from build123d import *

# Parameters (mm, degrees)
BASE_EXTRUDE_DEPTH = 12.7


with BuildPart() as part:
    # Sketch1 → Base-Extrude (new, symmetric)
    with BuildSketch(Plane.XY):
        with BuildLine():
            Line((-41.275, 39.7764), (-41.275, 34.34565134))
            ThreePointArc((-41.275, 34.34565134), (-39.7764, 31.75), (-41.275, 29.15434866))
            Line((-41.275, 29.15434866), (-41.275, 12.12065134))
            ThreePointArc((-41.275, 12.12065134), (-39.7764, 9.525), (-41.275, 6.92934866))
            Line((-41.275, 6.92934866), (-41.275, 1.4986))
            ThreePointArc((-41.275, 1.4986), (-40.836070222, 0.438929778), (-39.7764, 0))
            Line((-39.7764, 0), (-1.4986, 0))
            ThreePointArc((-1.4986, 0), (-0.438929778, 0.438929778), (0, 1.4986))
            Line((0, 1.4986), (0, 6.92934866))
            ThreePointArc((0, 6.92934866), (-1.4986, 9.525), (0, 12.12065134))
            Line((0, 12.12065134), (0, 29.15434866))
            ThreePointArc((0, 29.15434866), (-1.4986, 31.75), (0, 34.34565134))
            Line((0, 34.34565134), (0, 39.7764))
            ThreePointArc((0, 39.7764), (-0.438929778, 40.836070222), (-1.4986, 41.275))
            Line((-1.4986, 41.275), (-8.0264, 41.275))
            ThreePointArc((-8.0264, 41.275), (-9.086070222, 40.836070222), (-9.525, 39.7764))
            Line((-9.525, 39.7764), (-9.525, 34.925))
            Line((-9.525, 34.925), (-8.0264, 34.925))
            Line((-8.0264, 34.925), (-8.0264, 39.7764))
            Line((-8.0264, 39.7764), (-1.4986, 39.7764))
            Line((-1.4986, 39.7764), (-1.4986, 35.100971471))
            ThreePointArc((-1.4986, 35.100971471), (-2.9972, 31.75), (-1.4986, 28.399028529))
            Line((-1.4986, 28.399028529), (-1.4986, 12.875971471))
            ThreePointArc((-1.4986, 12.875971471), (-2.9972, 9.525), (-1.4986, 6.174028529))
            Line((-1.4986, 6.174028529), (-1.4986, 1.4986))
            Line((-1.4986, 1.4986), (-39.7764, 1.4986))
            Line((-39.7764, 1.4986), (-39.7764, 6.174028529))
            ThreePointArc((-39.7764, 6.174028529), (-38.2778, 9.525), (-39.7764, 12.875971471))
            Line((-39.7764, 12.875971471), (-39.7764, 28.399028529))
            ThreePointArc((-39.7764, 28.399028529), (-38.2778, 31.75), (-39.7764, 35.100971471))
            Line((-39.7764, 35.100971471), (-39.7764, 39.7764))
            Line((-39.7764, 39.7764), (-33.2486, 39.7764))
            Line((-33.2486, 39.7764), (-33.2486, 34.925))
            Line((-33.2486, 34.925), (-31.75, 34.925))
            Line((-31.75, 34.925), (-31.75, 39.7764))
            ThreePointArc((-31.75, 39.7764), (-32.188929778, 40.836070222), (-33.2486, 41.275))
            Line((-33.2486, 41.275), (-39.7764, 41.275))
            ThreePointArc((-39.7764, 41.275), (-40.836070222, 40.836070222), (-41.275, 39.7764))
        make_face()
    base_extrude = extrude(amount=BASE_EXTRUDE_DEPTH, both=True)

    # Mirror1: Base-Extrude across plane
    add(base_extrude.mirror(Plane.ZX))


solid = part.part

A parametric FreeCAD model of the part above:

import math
import FreeCAD as App
import Part
import Sketcher
from FreeCAD import Vector
Q = App.Units.Quantity

doc = App.newDocument("Part")
params = doc.addObject("Spreadsheet::Sheet", "Params")
for row, (alias, value) in enumerate([
    ("sketch1_radius", "0.118 in"),
    ("sketch1_radius2", "0.059 in"),
    ("sketch1_radius3", "0.177 in"),
    ("sketch1_width", "1.507 in"),
    ("sketch1_width2", "0.257 in"),
    ("pad1_length", "1 in"),
], start=1):
    params.set(f"A{row}", alias)
    params.set(f"B{row}", "=" + value)
    params.setAlias(f"B{row}", alias)

body = doc.addObject("PartDesign::Body", "Body")

# Sketch on XY plane
sketch1 = doc.addObject("Sketcher::SketchObject", "Sketch")
body.addObject(sketch1)
sketch1.AttachmentSupport = (doc.XY_Plane, [""])
sketch1.MapMode = "FlatFace"
sketch1.addGeometry(Part.LineSegment(Vector(-41.3, 39.8, 0), Vector(-41.3, 34.3, 0)), False)
sketch1.addGeometry(Part.ArcOfCircle(Part.Circle(Vector(-42.8, 31.8, 0), Vector(0, 0, 1), 3), math.radians(-60), math.radians(60)), False)
sketch1.addGeometry(Part.LineSegment(Vector(-41.3, 29.2, 0), Vector(-41.3, 12.1, 0)), False)
sketch1.addGeometry(Part.ArcOfCircle(Part.Circle(Vector(-42.8, 9.5, 0), Vector(0, 0, 1), 3), math.radians(-60), math.radians(60)), False)
sketch1.addGeometry(Part.LineSegment(Vector(-41.3, 6.9, 0), Vector(-41.3, 1.5, 0)), False)
sketch1.addGeometry(Part.ArcOfCircle(Part.Circle(Vector(-39.8, 1.5, 0), Vector(0, 0, 1), 1.5), math.radians(-180), math.radians(-90)), False)
sketch1.addGeometry(Part.LineSegment(Vector(-39.8, 0, 0), Vector(-1.5, 0, 0)), False)
sketch1.addGeometry(Part.ArcOfCircle(Part.Circle(Vector(-1.5, 1.5, 0), Vector(0, 0, 1), 1.5), math.radians(-90), math.radians(0)), False)
sketch1.addGeometry(Part.LineSegment(Vector(0, 1.5, 0), Vector(0, 6.9, 0)), False)
sketch1.addGeometry(Part.ArcOfCircle(Part.Circle(Vector(1.5, 9.5, 0), Vector(0, 0, 1), 3), math.radians(120), math.radians(240)), False)
sketch1.addGeometry(Part.LineSegment(Vector(0, 12.1, 0), Vector(0, 29.2, 0)), False)
sketch1.addGeometry(Part.ArcOfCircle(Part.Circle(Vector(1.5, 31.8, 0), Vector(0, 0, 1), 3), math.radians(120), math.radians(240)), False)
sketch1.addGeometry(Part.LineSegment(Vector(0, 34.3, 0), Vector(0, 39.8, 0)), False)
sketch1.addGeometry(Part.ArcOfCircle(Part.Circle(Vector(-1.5, 39.8, 0), Vector(0, 0, 1), 1.5), math.radians(0), math.radians(90)), False)
sketch1.addGeometry(Part.LineSegment(Vector(-1.5, 41.3, 0), Vector(-8, 41.3, 0)), False)
sketch1.addGeometry(Part.ArcOfCircle(Part.Circle(Vector(-8, 39.8, 0), Vector(0, 0, 1), 1.5), math.radians(90), math.radians(180)), False)
sketch1.addGeometry(Part.LineSegment(Vector(-9.5, 39.8, 0), Vector(-9.5, 34.9, 0)), False)
sketch1.addGeometry(Part.LineSegment(Vector(-9.5, 34.9, 0), Vector(-8, 34.9, 0)), False)
sketch1.addGeometry(Part.LineSegment(Vector(-8, 34.9, 0), Vector(-8, 39.8, 0)), False)
sketch1.addGeometry(Part.LineSegment(Vector(-8, 39.8, 0), Vector(-1.5, 39.8, 0)), False)
sketch1.addGeometry(Part.LineSegment(Vector(-1.5, 39.8, 0), Vector(-1.5, 35.1, 0)), False)
sketch1.addGeometry(Part.ArcOfCircle(Part.Circle(Vector(1.5, 31.8, 0), Vector(0, 0, 1), 4.5), math.radians(132), math.radians(228)), False)
sketch1.addGeometry(Part.LineSegment(Vector(-1.5, 28.4, 0), Vector(-1.5, 12.9, 0)), False)
sketch1.addGeometry(Part.ArcOfCircle(Part.Circle(Vector(1.5, 9.5, 0), Vector(0, 0, 1), 4.5), math.radians(132), math.radians(228)), False)
sketch1.addGeometry(Part.LineSegment(Vector(-1.5, 6.2, 0), Vector(-1.5, 1.5, 0)), False)
sketch1.addGeometry(Part.LineSegment(Vector(-1.5, 1.5, 0), Vector(-39.8, 1.5, 0)), False)
sketch1.addGeometry(Part.LineSegment(Vector(-39.8, 1.5, 0), Vector(-39.8, 6.2, 0)), False)
sketch1.addGeometry(Part.ArcOfCircle(Part.Circle(Vector(-42.8, 9.5, 0), Vector(0, 0, 1), 4.5), math.radians(-48), math.radians(48)), False)
sketch1.addGeometry(Part.LineSegment(Vector(-39.8, 12.9, 0), Vector(-39.8, 28.4, 0)), False)
sketch1.addGeometry(Part.ArcOfCircle(Part.Circle(Vector(-42.8, 31.8, 0), Vector(0, 0, 1), 4.5), math.radians(-48), math.radians(48)), False)
sketch1.addGeometry(Part.LineSegment(Vector(-39.8, 35.1, 0), Vector(-39.8, 39.8, 0)), False)
sketch1.addGeometry(Part.LineSegment(Vector(-39.8, 39.8, 0), Vector(-33.2, 39.8, 0)), False)
sketch1.addGeometry(Part.LineSegment(Vector(-33.2, 39.8, 0), Vector(-33.2, 34.9, 0)), False)
sketch1.addGeometry(Part.LineSegment(Vector(-33.2, 34.9, 0), Vector(-31.8, 34.9, 0)), False)
sketch1.addGeometry(Part.LineSegment(Vector(-31.8, 34.9, 0), Vector(-31.8, 39.8, 0)), False)
sketch1.addGeometry(Part.ArcOfCircle(Part.Circle(Vector(-33.2, 39.8, 0), Vector(0, 0, 1), 1.5), math.radians(0), math.radians(90)), False)
sketch1.addGeometry(Part.LineSegment(Vector(-33.2, 41.3, 0), Vector(-39.8, 41.3, 0)), False)
sketch1.addGeometry(Part.ArcOfCircle(Part.Circle(Vector(-39.8, 39.8, 0), Vector(0, 0, 1), 1.5), math.radians(90), math.radians(180)), False)
sketch1.addConstraint(Sketcher.Constraint("Coincident", 0, 2, 1, 2))
sketch1.addConstraint(Sketcher.Constraint("Coincident", 1, 1, 2, 1))
sketch1.addConstraint(Sketcher.Constraint("Coincident", 2, 2, 3, 2))
sketch1.addConstraint(Sketcher.Constraint("Coincident", 3, 1, 4, 1))
sketch1.addConstraint(Sketcher.Constraint("Tangent", 4, 2, 5, 1))
sketch1.addConstraint(Sketcher.Constraint("Tangent", 5, 2, 6, 1))
sketch1.addConstraint(Sketcher.Constraint("Tangent", 6, 2, 7, 1))
sketch1.addConstraint(Sketcher.Constraint("Tangent", 7, 2, 8, 1))
sketch1.addConstraint(Sketcher.Constraint("Coincident", 8, 2, 9, 2))
sketch1.addConstraint(Sketcher.Constraint("Coincident", 9, 1, 10, 1))
sketch1.addConstraint(Sketcher.Constraint("Coincident", 10, 2, 11, 2))
sketch1.addConstraint(Sketcher.Constraint("Coincident", 11, 1, 12, 1))
sketch1.addConstraint(Sketcher.Constraint("Tangent", 12, 2, 13, 1))
sketch1.addConstraint(Sketcher.Constraint("Tangent", 13, 2, 14, 1))
sketch1.addConstraint(Sketcher.Constraint("Tangent", 14, 2, 15, 1))
sketch1.addConstraint(Sketcher.Constraint("Tangent", 15, 2, 16, 1))
sketch1.addConstraint(Sketcher.Constraint("Coincident", 16, 2, 17, 1))
sketch1.addConstraint(Sketcher.Constraint("Coincident", 17, 2, 18, 1))
sketch1.addConstraint(Sketcher.Constraint("Coincident", 18, 2, 19, 1))
sketch1.addConstraint(Sketcher.Constraint("Coincident", 19, 2, 20, 1))
sketch1.addConstraint(Sketcher.Constraint("Coincident", 20, 2, 21, 1))
sketch1.addConstraint(Sketcher.Constraint("Coincident", 21, 2, 22, 1))
sketch1.addConstraint(Sketcher.Constraint("Coincident", 22, 2, 23, 1))
sketch1.addConstraint(Sketcher.Constraint("Coincident", 23, 2, 24, 1))
sketch1.addConstraint(Sketcher.Constraint("Coincident", 24, 2, 25, 1))
sketch1.addConstraint(Sketcher.Constraint("Coincident", 25, 2, 26, 1))
sketch1.addConstraint(Sketcher.Constraint("Coincident", 26, 2, 27, 1))
sketch1.addConstraint(Sketcher.Constraint("Coincident", 27, 2, 28, 1))
sketch1.addConstraint(Sketcher.Constraint("Coincident", 28, 2, 29, 1))
sketch1.addConstraint(Sketcher.Constraint("Coincident", 29, 2, 30, 1))
sketch1.addConstraint(Sketcher.Constraint("Coincident", 30, 2, 31, 1))
sketch1.addConstraint(Sketcher.Constraint("Coincident", 31, 2, 32, 1))
sketch1.addConstraint(Sketcher.Constraint("Coincident", 32, 2, 33, 1))
sketch1.addConstraint(Sketcher.Constraint("Coincident", 33, 2, 34, 1))
sketch1.addConstraint(Sketcher.Constraint("Tangent", 34, 2, 35, 1))
sketch1.addConstraint(Sketcher.Constraint("Tangent", 35, 2, 36, 1))
sketch1.addConstraint(Sketcher.Constraint("Tangent", 36, 2, 37, 1))
sketch1.addConstraint(Sketcher.Constraint("Tangent", 37, 2, 0, 1))
sketch1.addConstraint(Sketcher.Constraint("Vertical", 0))
sketch1.addConstraint(Sketcher.Constraint("Vertical", 2))
sketch1.addConstraint(Sketcher.Constraint("Vertical", 4))
sketch1.addConstraint(Sketcher.Constraint("Horizontal", 6))
sketch1.addConstraint(Sketcher.Constraint("Vertical", 8))
sketch1.addConstraint(Sketcher.Constraint("Vertical", 10))
sketch1.addConstraint(Sketcher.Constraint("Vertical", 12))
sketch1.addConstraint(Sketcher.Constraint("Horizontal", 14))
sketch1.addConstraint(Sketcher.Constraint("Vertical", 16))
sketch1.addConstraint(Sketcher.Constraint("Horizontal", 17))
sketch1.addConstraint(Sketcher.Constraint("Vertical", 18))
sketch1.addConstraint(Sketcher.Constraint("Horizontal", 19))
sketch1.addConstraint(Sketcher.Constraint("Vertical", 20))
sketch1.addConstraint(Sketcher.Constraint("Vertical", 22))
sketch1.addConstraint(Sketcher.Constraint("Vertical", 24))
sketch1.addConstraint(Sketcher.Constraint("Horizontal", 25))
sketch1.addConstraint(Sketcher.Constraint("Vertical", 26))
sketch1.addConstraint(Sketcher.Constraint("Vertical", 28))
sketch1.addConstraint(Sketcher.Constraint("Vertical", 30))
sketch1.addConstraint(Sketcher.Constraint("Horizontal", 31))
sketch1.addConstraint(Sketcher.Constraint("Vertical", 32))
sketch1.addConstraint(Sketcher.Constraint("Horizontal", 33))
sketch1.addConstraint(Sketcher.Constraint("Vertical", 34))
sketch1.addConstraint(Sketcher.Constraint("Horizontal", 36))
sketch1.addConstraint(Sketcher.Constraint("Coincident", 21, 3, 11, 3))
sketch1.addConstraint(Sketcher.Constraint("Coincident", 23, 3, 9, 3))
sketch1.addConstraint(Sketcher.Constraint("Coincident", 27, 3, 3, 3))
sketch1.addConstraint(Sketcher.Constraint("Coincident", 29, 3, 1, 3))
sketch1.addConstraint(Sketcher.Constraint("Coincident", 18, 2, 15, 3))
sketch1.addConstraint(Sketcher.Constraint("Coincident", 19, 2, 13, 3))
sketch1.addConstraint(Sketcher.Constraint("Coincident", 24, 2, 7, 3))
sketch1.addConstraint(Sketcher.Constraint("Coincident", 25, 2, 5, 3))
sketch1.addConstraint(Sketcher.Constraint("Coincident", 30, 2, 37, 3))
sketch1.addConstraint(Sketcher.Constraint("Coincident", 31, 2, 35, 3))
sketch1.addConstraint(Sketcher.Constraint("Equal", 1, 3))
sketch1.addConstraint(Sketcher.Constraint("Equal", 3, 9))
sketch1.addConstraint(Sketcher.Constraint("Equal", 9, 11))
sketch1.addConstraint(Sketcher.Constraint("Equal", 7, 13))
sketch1.addConstraint(Sketcher.Constraint("Equal", 21, 23))
sketch1.addConstraint(Sketcher.Constraint("Equal", 23, 27))
sketch1.addConstraint(Sketcher.Constraint("Equal", 27, 29))
sketch1.addConstraint(Sketcher.Constraint("Equal", 15, 35))
sketch1.addConstraint(Sketcher.Constraint("PointOnObject", 5, 2, -1))
sketch1.addConstraint(Sketcher.Constraint("PointOnObject", 7, 2, -2))
sketch1.addConstraint(Sketcher.Constraint("PointOnObject", 9, 1, -2))
sketch1.addConstraint(Sketcher.Constraint("PointOnObject", 11, 1, -2))
sketch1.addConstraint(Sketcher.Constraint("Horizontal", 3, 3, 9, 3))
sketch1.addConstraint(Sketcher.Constraint("Horizontal", 1, 3, 11, 3))
sketch1.addConstraint(Sketcher.Constraint("Horizontal", 15, 3, 35, 3))
sketch1.addConstraint(Sketcher.Constraint("Horizontal", 3, 1, 8, 2))
sketch1.addConstraint(Sketcher.Constraint("Horizontal", 2, 2, 9, 1))
sketch1.addConstraint(Sketcher.Constraint("Horizontal", 1, 1, 10, 2))
sketch1.addConstraint(Sketcher.Constraint("Horizontal", 0, 2, 11, 1))
sketch1.addConstraint(Sketcher.Constraint("Horizontal", 22, 2, 27, 2))
sketch1.addConstraint(Sketcher.Constraint("Horizontal", 17, 2, 32, 2))
sketch1.addConstraint(Sketcher.Constraint("Vertical", 1, 3, 3, 3))
sketch1.addConstraint(Sketcher.Constraint("Vertical", 20, 2, 21, 2))
sketch1.addConstraint(Sketcher.Constraint("Equal", 19, 31))
sketch1.addConstraint(Sketcher.Constraint("Equal", 0, 4))
sketch1.addConstraint(Sketcher.Constraint("Radius", 1, Q("0.118 in")))
sketch1.addConstraint(Sketcher.Constraint("Radius", 5, Q("0.059 in")))
sketch1.addConstraint(Sketcher.Constraint("Radius", 21, Q("0.177 in")))
sketch1.addConstraint(Sketcher.Constraint("DistanceX", 6, 1, 6, 2, Q("1.507 in")))
sketch1.addConstraint(Sketcher.Constraint("DistanceX", 14, 2, 14, 1, Q("0.257 in")))
sketch1.addConstraint(Sketcher.Constraint("DistanceY", 16, 2, 16, 1, Q("0.191 in")))
sketch1.addConstraint(Sketcher.Constraint("DistanceY", -1, 1, 1, 3, Q("1.25 in")))
sketch1.addConstraint(Sketcher.Constraint("DistanceX", 1, 3, -1, 1, Q("1.684 in")))
sketch1.addConstraint(Sketcher.Constraint("DistanceY", -1, 1, 3, 3, Q("0.375 in")))
sketch1.setExpression("Constraints[97]", "Params.sketch1_radius")
sketch1.setExpression("Constraints[98]", "Params.sketch1_radius2")
sketch1.setExpression("Constraints[99]", "Params.sketch1_radius3")
sketch1.setExpression("Constraints[100]", "Params.sketch1_width")
sketch1.setExpression("Constraints[101]", "Params.sketch1_width2")
pad1 = doc.addObject("PartDesign::Pad", "Pad")
body.addObject(pad1)
pad1.Profile = sketch1
pad1.setExpression("Length", "Params.pad1_length")
pad1.Midplane = True
doc.recompute()

mirrored = doc.addObject("PartDesign::Mirrored", "Mirrored")
body.addObject(mirrored)
mirrored.Originals = [pad1]
mirrored.MirrorPlane = (doc.XZ_Plane, [""])
body.Tip = mirrored

doc.recompute()
